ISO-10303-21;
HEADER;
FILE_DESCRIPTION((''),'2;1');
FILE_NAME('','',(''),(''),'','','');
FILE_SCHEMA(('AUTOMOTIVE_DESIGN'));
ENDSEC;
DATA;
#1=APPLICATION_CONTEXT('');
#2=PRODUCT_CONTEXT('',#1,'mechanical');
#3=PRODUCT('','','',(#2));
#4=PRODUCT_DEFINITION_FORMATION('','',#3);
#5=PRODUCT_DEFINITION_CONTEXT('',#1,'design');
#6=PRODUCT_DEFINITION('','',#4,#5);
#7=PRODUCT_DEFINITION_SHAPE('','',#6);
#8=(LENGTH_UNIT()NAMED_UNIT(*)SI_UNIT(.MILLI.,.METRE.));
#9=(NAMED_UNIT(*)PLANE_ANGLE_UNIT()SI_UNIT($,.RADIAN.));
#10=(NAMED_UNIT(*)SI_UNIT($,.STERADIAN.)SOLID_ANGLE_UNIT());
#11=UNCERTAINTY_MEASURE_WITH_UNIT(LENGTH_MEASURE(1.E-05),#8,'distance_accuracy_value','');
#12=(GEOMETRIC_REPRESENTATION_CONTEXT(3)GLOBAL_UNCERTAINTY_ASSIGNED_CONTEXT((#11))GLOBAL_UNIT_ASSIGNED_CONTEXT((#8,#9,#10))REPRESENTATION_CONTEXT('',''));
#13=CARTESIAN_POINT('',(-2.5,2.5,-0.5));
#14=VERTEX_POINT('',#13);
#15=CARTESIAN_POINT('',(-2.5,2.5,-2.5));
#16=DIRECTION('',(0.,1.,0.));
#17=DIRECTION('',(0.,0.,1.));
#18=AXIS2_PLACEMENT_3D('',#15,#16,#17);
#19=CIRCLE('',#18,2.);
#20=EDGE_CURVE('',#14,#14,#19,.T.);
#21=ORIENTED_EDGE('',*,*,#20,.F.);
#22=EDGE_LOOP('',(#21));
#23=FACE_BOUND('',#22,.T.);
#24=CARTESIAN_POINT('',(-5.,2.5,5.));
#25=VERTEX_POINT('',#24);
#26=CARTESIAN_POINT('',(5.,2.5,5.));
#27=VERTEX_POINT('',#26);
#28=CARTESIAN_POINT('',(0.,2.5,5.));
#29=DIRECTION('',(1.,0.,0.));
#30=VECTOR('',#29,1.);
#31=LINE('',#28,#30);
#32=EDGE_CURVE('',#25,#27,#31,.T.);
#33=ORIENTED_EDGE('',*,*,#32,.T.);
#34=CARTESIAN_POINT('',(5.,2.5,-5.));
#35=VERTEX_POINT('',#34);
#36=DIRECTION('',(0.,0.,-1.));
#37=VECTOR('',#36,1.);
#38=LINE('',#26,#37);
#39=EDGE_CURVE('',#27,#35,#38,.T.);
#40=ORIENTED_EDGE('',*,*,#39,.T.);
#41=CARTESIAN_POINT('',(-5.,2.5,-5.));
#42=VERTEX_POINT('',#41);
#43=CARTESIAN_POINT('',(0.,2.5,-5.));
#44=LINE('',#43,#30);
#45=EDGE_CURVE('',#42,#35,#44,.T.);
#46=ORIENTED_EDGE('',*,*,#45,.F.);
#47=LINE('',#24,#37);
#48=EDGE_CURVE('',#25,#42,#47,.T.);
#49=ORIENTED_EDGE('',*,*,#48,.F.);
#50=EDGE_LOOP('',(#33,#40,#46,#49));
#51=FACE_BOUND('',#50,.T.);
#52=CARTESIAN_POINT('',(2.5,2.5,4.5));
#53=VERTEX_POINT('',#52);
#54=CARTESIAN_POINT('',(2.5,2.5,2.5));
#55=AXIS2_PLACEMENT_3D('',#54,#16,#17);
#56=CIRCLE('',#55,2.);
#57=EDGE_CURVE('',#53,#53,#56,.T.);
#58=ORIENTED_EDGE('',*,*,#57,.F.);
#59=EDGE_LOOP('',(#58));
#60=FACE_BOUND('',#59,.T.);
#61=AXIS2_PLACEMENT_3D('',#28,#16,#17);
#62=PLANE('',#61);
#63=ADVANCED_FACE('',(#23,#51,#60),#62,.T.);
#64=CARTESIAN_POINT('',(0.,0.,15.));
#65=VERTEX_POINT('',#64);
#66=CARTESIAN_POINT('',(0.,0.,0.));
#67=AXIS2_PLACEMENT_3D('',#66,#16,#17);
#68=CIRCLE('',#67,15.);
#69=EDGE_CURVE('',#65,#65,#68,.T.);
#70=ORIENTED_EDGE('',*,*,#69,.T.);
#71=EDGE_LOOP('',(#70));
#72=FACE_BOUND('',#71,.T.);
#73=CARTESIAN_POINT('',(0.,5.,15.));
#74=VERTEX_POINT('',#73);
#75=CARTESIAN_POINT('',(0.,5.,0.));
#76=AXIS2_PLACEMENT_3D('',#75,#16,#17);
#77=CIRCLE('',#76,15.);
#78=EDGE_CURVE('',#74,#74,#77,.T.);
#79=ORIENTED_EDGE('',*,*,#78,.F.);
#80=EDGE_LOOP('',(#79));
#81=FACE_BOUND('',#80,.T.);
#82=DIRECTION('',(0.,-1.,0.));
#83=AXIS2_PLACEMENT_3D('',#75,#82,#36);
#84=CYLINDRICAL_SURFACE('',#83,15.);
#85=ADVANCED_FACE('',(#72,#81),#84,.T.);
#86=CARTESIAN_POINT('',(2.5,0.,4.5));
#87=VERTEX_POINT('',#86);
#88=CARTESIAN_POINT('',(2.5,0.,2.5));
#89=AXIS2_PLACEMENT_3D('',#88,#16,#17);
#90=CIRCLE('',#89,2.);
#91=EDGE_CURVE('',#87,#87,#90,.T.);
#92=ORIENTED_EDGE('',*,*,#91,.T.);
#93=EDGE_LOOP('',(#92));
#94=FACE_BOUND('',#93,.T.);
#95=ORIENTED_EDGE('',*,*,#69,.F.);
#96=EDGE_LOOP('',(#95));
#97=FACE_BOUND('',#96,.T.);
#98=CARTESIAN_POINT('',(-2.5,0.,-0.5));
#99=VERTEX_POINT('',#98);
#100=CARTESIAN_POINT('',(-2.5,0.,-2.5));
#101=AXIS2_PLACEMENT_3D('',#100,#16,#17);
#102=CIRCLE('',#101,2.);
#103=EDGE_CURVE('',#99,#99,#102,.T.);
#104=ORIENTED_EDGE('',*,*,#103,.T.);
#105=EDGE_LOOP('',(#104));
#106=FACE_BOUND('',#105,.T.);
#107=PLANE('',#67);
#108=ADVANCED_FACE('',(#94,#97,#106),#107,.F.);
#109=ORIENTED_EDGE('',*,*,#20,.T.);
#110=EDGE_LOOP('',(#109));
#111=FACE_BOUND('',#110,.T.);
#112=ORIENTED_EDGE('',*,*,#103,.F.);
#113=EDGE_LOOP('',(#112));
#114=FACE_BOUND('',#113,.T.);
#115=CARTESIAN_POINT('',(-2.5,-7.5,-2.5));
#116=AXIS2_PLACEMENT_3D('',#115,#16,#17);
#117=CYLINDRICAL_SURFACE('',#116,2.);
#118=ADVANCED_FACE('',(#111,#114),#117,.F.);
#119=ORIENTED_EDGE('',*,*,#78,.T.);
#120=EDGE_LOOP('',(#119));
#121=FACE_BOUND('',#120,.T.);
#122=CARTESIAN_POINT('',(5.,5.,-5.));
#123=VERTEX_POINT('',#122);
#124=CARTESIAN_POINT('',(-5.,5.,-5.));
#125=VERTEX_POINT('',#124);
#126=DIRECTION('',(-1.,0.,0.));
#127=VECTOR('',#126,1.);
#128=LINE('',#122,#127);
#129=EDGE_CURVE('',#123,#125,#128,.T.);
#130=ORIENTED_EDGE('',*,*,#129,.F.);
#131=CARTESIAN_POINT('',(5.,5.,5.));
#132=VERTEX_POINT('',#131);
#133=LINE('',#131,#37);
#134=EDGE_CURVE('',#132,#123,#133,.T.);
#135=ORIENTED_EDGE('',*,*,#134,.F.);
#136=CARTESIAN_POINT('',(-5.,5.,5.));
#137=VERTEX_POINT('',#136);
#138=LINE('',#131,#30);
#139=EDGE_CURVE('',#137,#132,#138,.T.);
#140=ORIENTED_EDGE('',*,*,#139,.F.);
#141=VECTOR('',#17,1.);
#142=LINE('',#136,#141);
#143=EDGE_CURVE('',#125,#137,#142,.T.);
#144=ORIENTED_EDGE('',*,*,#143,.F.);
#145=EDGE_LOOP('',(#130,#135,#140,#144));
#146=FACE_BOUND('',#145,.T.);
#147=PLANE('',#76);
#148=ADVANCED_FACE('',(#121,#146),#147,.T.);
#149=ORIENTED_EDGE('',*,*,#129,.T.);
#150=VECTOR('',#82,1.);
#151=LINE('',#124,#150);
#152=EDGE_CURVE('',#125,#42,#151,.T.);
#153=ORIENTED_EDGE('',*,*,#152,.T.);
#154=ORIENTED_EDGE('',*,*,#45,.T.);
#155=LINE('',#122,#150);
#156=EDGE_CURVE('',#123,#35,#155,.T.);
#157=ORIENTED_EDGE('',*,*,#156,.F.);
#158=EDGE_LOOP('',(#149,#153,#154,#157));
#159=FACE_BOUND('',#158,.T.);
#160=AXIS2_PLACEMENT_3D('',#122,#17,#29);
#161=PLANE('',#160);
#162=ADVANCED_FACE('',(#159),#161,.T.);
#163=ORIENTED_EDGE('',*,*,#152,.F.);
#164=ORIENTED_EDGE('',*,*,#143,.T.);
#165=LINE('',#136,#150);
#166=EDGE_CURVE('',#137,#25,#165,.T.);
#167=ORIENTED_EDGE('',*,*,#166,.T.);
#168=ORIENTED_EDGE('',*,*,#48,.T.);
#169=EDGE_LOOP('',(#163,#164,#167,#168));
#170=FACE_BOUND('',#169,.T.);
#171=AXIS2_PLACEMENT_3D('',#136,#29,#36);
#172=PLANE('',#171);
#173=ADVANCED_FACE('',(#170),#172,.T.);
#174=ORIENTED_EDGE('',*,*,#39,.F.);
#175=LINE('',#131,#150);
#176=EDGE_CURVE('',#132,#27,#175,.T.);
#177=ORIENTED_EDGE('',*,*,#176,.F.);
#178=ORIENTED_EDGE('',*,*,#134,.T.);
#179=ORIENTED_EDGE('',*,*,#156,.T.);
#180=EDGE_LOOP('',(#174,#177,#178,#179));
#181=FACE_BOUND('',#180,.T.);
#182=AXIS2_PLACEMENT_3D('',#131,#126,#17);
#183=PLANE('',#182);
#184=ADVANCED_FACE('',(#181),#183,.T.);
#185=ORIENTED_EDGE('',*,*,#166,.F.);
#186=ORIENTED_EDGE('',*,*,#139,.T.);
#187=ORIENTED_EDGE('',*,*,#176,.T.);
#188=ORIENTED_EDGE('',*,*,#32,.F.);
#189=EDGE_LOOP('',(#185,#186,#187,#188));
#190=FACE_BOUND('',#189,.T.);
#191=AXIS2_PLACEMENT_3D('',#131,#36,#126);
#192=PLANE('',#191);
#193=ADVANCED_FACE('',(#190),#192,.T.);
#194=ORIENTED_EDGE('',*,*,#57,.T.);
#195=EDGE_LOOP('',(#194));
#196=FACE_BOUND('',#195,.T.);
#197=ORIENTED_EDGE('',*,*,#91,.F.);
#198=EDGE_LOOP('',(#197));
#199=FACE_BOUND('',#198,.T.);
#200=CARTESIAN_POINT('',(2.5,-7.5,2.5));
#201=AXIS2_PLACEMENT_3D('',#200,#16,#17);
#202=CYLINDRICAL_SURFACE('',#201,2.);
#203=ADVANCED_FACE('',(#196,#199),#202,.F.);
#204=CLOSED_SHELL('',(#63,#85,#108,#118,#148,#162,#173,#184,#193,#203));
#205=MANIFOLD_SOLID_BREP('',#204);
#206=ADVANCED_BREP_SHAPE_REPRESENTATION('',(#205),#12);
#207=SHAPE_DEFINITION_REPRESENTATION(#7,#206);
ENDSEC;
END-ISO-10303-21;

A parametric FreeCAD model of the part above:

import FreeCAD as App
import Part
import Sketcher
from FreeCAD import Vector

doc = App.newDocument("Part")
params = doc.addObject("Spreadsheet::Sheet", "Params")
for row, (alias, value) in enumerate([
    ("sketch1_diameter", "30 mm"),
    ("sketch1_width", "10 mm"),
    ("pad1_length", "5 mm"),
    ("sketch2_width", "10 mm"),
    ("sketch2_height", "2.5 mm"),
    ("pad2_length", "10 mm"),
    ("sketch3_diameter", "4 mm"),
    ("pocket1_length", "10 mm"),
], start=1):
    params.set(f"A{row}", alias)
    params.set(f"B{row}", "=" + value)
    params.setAlias(f"B{row}", alias)

body = doc.addObject("PartDesign::Body", "Body")

# Sketch on XZ plane
sketch1 = body.newObject("Sketcher::SketchObject", "Sketch")
sketch1.AttachmentSupport = (doc.getObject("XZ_Plane"), [""])
sketch1.MapMode = "FlatFace"
sketch1.addGeometry([
    Part.Circle(Vector(0, 0, 0), Vector(0, 0, 1), 15),  # 0
    Part.LineSegment(Vector(5, 5, 0), Vector(-5, 5, 0)),  # 1
    Part.LineSegment(Vector(-5, 5, 0), Vector(-5, -5, 0)),  # 2
    Part.LineSegment(Vector(-5, -5, 0), Vector(5, -5, 0)),  # 3
    Part.LineSegment(Vector(5, -5, 0), Vector(5, 5, 0)),  # 4
], False)
sketch1.addConstraint([
    Sketcher.Constraint("Coincident", 1, 2, 2, 1),
    Sketcher.Constraint("Coincident", 2, 2, 3, 1),
    Sketcher.Constraint("Coincident", 3, 2, 4, 1),
    Sketcher.Constraint("Coincident", 4, 2, 1, 1),
    Sketcher.Constraint("Horizontal", 1),
    Sketcher.Constraint("Vertical", 2),
    Sketcher.Constraint("Horizontal", 3),
    Sketcher.Constraint("Vertical", 4),
    Sketcher.Constraint("Coincident", 0, 3, -1, 1),
    Sketcher.Constraint("Symmetric", 1, 2, 3, 2, -1, 1),
    Sketcher.Constraint("Equal", 3, 2),
    Sketcher.Constraint("Diameter", 0, 30.0),
    Sketcher.Constraint("DistanceX", 1, 2, 1, 1, 10.0),
])
sketch1.setExpression("Constraints[11]", "Params.sketch1_diameter")
sketch1.setExpression("Constraints[12]", "Params.sketch1_width")
pad1 = body.newObject("PartDesign::Pad", "Pad")
pad1.Profile = sketch1
pad1.setExpression("Length", "Params.pad1_length")
pad1.Reversed = True

# Sketch on XY plane
sketch2 = body.newObject("Sketcher::SketchObject", "Sketch001")
sketch2.AttachmentSupport = (doc.getObject("XY_Plane"), [""])
sketch2.MapMode = "FlatFace"
sketch2.AttachmentOffset = App.Placement(Vector(0, 0, -5), App.Rotation())
sketch2.addGeometry([
    Part.LineSegment(Vector(-5, 2.5, 0), Vector(-5, 0, 0)),
    Part.LineSegment(Vector(-5, 0, 0), Vector(5, 0, 0)),
    Part.LineSegment(Vector(5, 0, 0), Vector(5, 2.5, 0)),
    Part.LineSegment(Vector(5, 2.5, 0), Vector(-5, 2.5, 0)),
], False)
sketch2.addConstraint([
    Sketcher.Constraint("Coincident", 0, 2, 1, 1),
    Sketcher.Constraint("Coincident", 1, 2, 2, 1),
    Sketcher.Constraint("Coincident", 2, 2, 3, 1),
    Sketcher.Constraint("Coincident", 3, 2, 0, 1),
    Sketcher.Constraint("Vertical", 0),
    Sketcher.Constraint("Horizontal", 1),
    Sketcher.Constraint("Vertical", 2),
    Sketcher.Constraint("Horizontal", 3),
    Sketcher.Constraint("Symmetric", 0, 2, 1, 2, -1, 1),
    Sketcher.Constraint("DistanceX", 1, 1, 1, 2, 10.0),
    Sketcher.Constraint("DistanceY", 0, 2, 0, 1, 2.5),
])
sketch2.setExpression("Constraints[9]", "Params.sketch2_width")
sketch2.setExpression("Constraints[10]", "Params.sketch2_height")
pad2 = body.newObject("PartDesign::Pad", "Pad001")
pad2.Profile = sketch2
pad2.setExpression("Length", "Params.pad2_length")

# Sketch on XZ plane
sketch3 = body.newObject("Sketcher::SketchObject", "Sketch002")
sketch3.AttachmentSupport = (doc.getObject("XZ_Plane"), [""])
sketch3.MapMode = "FlatFace"
sketch3.AttachmentOffset = App.Placement(Vector(0, 0, -2.5), App.Rotation())
sketch3.addGeometry([
    Part.Circle(Vector(-2.5, -2.5, 0), Vector(0, 0, 1), 2),
    Part.Circle(Vector(2.5, 2.5, 0), Vector(0, 0, 1), 2),
], False)
sketch3.addConstraint([
    Sketcher.Constraint("Equal", 0, 1),
    Sketcher.Constraint("Symmetric", 0, 3, 1, 3, -1, 1),
    Sketcher.Constraint("Diameter", 0, 4.0),
    Sketcher.Constraint("DistanceX", 0, 3, 1, 3, 5.0),
    Sketcher.Constraint("DistanceY", 0, 3, 1, 3, 5.0),
])
sketch3.setExpression("Constraints[2]", "Params.sketch3_diameter")
pocket1 = body.newObject("PartDesign::Pocket", "Pocket")
pocket1.Profile = sketch3
pocket1.setExpression("Length", "Params.pocket1_length")
pocket1.Reversed = True

doc.recompute()
